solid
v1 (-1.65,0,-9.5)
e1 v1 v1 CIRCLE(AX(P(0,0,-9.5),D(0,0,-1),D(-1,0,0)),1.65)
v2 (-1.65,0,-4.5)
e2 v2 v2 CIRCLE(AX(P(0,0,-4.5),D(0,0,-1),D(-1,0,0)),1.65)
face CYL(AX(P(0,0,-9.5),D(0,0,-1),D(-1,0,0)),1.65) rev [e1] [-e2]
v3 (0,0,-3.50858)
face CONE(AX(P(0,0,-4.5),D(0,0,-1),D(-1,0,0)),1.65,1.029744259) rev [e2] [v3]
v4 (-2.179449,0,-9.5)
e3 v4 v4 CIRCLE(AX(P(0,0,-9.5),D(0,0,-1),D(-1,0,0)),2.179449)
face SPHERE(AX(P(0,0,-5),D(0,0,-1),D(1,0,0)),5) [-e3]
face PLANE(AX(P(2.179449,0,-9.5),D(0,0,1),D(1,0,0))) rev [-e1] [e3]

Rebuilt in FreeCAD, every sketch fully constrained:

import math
import FreeCAD as App
import Part
import Sketcher
from FreeCAD import Vector

doc = App.newDocument("Part")
params = doc.addObject("Spreadsheet::Sheet", "Params")
for row, (alias, value) in enumerate([
    ("sketch1_radius", "5 mm"),
    ("sketch1_height", "9.5 mm"),
    ("revolution_angle", "360 deg"),
    ("sketch2_diameter", "3.3 mm"),
    ("hole_diameter", "3.3 mm"),
    ("hole_depth", "5 mm"),
], start=1):
    params.set(f"A{row}", alias)
    params.set(f"B{row}", "=" + value)
    params.setAlias(f"B{row}", alias)

body = doc.addObject("PartDesign::Body", "Body")

# Sketch on XZ plane
sketch1 = body.newObject("Sketcher::SketchObject", "Sketch")
sketch1.AttachmentSupport = (doc.getObject("XZ_Plane"), [""])
sketch1.MapMode = "FlatFace"
sketch1.addGeometry([
    Part.LineSegment(Vector(2.2, -9.5, 0), Vector(0, -9.5, 0)),
    Part.LineSegment(Vector(0, -9.5, 0), Vector(0, 0, 0)),
    Part.ArcOfCircle(Part.Circle(Vector(0, -5, 0), Vector(0, 0, 1), 5), math.radians(-64), math.radians(90)),
], False)
sketch1.addConstraint([
    Sketcher.Constraint("Coincident", 0, 2, 1, 1),
    Sketcher.Constraint("Coincident", 1, 2, 2, 2),
    Sketcher.Constraint("Coincident", 2, 1, 0, 1),
    Sketcher.Constraint("Horizontal", 0),
    Sketcher.Constraint("Vertical", 1),
    Sketcher.Constraint("Coincident", 1, 2, -1, 1),
    Sketcher.Constraint("PointOnObject", 2, 3, -2),
    Sketcher.Constraint("Radius", 2, 5.0),
    Sketcher.Constraint("DistanceY", 1, 1, 1, 2, 9.5),
])
sketch1.setExpression("Constraints[7]", "Params.sketch1_radius")
sketch1.setExpression("Constraints[8]", "Params.sketch1_height")
revolution = body.newObject("PartDesign::Revolution", "Revolution")
revolution.Profile = sketch1
revolution.ReferenceAxis = (sketch1, ["V_Axis"])
revolution.setExpression("Angle", "Params.revolution_angle")

# Sketch on XY plane
sketch2 = body.newObject("Sketcher::SketchObject", "Sketch001")
sketch2.AttachmentSupport = (doc.getObject("XY_Plane"), [""])
sketch2.MapMode = "FlatFace"
sketch2.AttachmentOffset = App.Placement(Vector(0, 0, -9.5), App.Rotation())
sketch2.addGeometry(Part.Circle(Vector(0, 0, 0), Vector(0, 0, 1), 1.6), False)
sketch2.addConstraint([
    Sketcher.Constraint("Coincident", 0, 3, -1, 1),
    Sketcher.Constraint("Diameter", 0, 3.3),
])
sketch2.setExpression("Constraints[1]", "Params.sketch2_diameter")
doc.recompute()
hole = body.newObject("PartDesign::Hole", "Hole")
hole.Profile = sketch2
hole.ThreadType = "None"
hole.setExpression("Diameter", "Params.hole_diameter")
hole.DepthType = "Dimension"
hole.setExpression("Depth", "Params.hole_depth")
hole.DrillPoint = "Angled"
hole.DrillPointAngle = 118
hole.Reversed = True

doc.recompute()
